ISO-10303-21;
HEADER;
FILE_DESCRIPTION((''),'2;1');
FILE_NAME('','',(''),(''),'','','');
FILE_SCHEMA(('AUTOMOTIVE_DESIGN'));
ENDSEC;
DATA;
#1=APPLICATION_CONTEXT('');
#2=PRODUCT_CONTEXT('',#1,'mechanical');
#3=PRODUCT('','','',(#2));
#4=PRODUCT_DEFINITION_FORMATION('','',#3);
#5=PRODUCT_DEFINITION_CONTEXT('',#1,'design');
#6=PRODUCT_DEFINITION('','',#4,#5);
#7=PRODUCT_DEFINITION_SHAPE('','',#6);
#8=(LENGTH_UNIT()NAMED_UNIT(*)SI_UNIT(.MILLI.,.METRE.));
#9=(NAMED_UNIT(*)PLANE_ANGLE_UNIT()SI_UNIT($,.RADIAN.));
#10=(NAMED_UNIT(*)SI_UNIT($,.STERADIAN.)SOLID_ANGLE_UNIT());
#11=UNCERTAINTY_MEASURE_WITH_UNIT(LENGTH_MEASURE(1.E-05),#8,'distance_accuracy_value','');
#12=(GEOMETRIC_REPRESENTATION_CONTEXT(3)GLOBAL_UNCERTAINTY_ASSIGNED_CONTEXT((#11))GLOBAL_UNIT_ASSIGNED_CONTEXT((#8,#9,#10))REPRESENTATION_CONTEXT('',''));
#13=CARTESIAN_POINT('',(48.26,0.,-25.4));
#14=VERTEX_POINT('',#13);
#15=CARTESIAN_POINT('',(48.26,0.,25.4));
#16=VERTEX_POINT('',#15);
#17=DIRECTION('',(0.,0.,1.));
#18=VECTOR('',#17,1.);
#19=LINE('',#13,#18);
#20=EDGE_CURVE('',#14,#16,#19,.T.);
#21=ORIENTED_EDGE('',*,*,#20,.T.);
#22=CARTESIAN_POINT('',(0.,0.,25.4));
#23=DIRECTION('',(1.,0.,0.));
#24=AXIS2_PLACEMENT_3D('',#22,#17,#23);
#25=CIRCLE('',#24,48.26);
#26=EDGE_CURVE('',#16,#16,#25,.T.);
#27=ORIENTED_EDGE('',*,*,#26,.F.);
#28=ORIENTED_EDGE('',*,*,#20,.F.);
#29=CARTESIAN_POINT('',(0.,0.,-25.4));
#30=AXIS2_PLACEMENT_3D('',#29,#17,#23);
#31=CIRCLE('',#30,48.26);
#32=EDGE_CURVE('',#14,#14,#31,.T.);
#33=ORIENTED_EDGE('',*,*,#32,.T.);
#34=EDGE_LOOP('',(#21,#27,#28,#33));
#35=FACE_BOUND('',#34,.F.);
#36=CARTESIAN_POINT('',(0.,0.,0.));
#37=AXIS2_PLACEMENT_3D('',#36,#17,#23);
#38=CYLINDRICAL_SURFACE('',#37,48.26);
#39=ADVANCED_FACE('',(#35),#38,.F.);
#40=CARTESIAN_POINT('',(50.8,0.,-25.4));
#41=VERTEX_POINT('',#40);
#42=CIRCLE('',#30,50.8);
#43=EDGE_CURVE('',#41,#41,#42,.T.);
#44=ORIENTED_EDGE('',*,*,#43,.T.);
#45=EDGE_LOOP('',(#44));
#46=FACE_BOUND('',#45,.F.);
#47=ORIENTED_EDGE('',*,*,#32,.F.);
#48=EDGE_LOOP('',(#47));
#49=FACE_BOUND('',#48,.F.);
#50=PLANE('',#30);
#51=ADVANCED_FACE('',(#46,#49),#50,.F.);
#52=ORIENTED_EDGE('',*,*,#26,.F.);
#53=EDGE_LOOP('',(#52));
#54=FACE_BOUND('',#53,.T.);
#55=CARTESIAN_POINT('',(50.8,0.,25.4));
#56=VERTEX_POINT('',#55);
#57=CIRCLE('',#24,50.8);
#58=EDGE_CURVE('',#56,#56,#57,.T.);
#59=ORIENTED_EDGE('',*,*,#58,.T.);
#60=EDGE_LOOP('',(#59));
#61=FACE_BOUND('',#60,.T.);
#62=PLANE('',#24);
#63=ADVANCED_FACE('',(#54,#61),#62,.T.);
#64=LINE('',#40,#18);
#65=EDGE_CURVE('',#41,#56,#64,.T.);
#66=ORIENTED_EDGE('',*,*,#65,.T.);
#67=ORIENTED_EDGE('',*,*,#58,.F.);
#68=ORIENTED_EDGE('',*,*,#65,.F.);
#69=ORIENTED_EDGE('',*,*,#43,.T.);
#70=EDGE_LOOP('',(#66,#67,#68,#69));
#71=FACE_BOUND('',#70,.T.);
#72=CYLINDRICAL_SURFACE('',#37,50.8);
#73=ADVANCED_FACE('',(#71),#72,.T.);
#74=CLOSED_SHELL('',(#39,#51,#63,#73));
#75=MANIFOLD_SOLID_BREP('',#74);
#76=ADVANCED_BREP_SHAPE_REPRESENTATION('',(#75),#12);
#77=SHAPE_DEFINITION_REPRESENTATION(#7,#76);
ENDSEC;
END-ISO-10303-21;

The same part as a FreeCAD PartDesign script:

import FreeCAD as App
import Part
import Sketcher
from FreeCAD import Vector
Q = App.Units.Quantity


def faces_at(feature, points):
    """Names of the faces that lie closest to the given points."""
    faces = feature.Shape.Faces
    near = lambda p: min(range(len(faces)), key=lambda i: faces[i].distToShape(Part.Vertex(*p))[0])
    return sorted({f"Face{near(p) + 1}" for p in points})

doc = App.newDocument("Part")
params = doc.addObject("Spreadsheet::Sheet", "Params")
for row, (alias, value) in enumerate([
    ("sketch1_diameter", "4 in"),
    ("pad1_length", "2 in"),
    ("thickness_wall", "0.1 in"),
], start=1):
    params.set(f"A{row}", alias)
    params.set(f"B{row}", "=" + value)
    params.setAlias(f"B{row}", alias)

body = doc.addObject("PartDesign::Body", "Body")

sketch1 = body.newObject("Sketcher::SketchObject", "Sketch")
sketch1.AttachmentSupport = (doc.getObject("XY_Plane"), [""])
sketch1.MapMode = "FlatFace"
sketch1.addGeometry(Part.Circle(Vector(0, 0, 0), Vector(0, 0, 1), 50.8), False)
sketch1.addConstraint([
    Sketcher.Constraint("Coincident", 0, 3, -1, 1),
    Sketcher.Constraint("Diameter", 0, Q("4 in")),
])
sketch1.setExpression("Constraints[1]", "Params.sketch1_diameter")
pad1 = body.newObject("PartDesign::Pad", "Pad")
pad1.Profile = sketch1
pad1.setExpression("Length", "Params.pad1_length")
pad1.Midplane = True
doc.recompute()

thickness = body.newObject("PartDesign::Thickness", "Thickness")
thickness.Base = (pad1, faces_at(pad1, [(0, 0, -25.4), (0, 0, 25.4)]))
thickness.setExpression("Value", "Params.thickness_wall")
thickness.Reversed = True
thickness.Join = "Arc"

doc.recompute()
